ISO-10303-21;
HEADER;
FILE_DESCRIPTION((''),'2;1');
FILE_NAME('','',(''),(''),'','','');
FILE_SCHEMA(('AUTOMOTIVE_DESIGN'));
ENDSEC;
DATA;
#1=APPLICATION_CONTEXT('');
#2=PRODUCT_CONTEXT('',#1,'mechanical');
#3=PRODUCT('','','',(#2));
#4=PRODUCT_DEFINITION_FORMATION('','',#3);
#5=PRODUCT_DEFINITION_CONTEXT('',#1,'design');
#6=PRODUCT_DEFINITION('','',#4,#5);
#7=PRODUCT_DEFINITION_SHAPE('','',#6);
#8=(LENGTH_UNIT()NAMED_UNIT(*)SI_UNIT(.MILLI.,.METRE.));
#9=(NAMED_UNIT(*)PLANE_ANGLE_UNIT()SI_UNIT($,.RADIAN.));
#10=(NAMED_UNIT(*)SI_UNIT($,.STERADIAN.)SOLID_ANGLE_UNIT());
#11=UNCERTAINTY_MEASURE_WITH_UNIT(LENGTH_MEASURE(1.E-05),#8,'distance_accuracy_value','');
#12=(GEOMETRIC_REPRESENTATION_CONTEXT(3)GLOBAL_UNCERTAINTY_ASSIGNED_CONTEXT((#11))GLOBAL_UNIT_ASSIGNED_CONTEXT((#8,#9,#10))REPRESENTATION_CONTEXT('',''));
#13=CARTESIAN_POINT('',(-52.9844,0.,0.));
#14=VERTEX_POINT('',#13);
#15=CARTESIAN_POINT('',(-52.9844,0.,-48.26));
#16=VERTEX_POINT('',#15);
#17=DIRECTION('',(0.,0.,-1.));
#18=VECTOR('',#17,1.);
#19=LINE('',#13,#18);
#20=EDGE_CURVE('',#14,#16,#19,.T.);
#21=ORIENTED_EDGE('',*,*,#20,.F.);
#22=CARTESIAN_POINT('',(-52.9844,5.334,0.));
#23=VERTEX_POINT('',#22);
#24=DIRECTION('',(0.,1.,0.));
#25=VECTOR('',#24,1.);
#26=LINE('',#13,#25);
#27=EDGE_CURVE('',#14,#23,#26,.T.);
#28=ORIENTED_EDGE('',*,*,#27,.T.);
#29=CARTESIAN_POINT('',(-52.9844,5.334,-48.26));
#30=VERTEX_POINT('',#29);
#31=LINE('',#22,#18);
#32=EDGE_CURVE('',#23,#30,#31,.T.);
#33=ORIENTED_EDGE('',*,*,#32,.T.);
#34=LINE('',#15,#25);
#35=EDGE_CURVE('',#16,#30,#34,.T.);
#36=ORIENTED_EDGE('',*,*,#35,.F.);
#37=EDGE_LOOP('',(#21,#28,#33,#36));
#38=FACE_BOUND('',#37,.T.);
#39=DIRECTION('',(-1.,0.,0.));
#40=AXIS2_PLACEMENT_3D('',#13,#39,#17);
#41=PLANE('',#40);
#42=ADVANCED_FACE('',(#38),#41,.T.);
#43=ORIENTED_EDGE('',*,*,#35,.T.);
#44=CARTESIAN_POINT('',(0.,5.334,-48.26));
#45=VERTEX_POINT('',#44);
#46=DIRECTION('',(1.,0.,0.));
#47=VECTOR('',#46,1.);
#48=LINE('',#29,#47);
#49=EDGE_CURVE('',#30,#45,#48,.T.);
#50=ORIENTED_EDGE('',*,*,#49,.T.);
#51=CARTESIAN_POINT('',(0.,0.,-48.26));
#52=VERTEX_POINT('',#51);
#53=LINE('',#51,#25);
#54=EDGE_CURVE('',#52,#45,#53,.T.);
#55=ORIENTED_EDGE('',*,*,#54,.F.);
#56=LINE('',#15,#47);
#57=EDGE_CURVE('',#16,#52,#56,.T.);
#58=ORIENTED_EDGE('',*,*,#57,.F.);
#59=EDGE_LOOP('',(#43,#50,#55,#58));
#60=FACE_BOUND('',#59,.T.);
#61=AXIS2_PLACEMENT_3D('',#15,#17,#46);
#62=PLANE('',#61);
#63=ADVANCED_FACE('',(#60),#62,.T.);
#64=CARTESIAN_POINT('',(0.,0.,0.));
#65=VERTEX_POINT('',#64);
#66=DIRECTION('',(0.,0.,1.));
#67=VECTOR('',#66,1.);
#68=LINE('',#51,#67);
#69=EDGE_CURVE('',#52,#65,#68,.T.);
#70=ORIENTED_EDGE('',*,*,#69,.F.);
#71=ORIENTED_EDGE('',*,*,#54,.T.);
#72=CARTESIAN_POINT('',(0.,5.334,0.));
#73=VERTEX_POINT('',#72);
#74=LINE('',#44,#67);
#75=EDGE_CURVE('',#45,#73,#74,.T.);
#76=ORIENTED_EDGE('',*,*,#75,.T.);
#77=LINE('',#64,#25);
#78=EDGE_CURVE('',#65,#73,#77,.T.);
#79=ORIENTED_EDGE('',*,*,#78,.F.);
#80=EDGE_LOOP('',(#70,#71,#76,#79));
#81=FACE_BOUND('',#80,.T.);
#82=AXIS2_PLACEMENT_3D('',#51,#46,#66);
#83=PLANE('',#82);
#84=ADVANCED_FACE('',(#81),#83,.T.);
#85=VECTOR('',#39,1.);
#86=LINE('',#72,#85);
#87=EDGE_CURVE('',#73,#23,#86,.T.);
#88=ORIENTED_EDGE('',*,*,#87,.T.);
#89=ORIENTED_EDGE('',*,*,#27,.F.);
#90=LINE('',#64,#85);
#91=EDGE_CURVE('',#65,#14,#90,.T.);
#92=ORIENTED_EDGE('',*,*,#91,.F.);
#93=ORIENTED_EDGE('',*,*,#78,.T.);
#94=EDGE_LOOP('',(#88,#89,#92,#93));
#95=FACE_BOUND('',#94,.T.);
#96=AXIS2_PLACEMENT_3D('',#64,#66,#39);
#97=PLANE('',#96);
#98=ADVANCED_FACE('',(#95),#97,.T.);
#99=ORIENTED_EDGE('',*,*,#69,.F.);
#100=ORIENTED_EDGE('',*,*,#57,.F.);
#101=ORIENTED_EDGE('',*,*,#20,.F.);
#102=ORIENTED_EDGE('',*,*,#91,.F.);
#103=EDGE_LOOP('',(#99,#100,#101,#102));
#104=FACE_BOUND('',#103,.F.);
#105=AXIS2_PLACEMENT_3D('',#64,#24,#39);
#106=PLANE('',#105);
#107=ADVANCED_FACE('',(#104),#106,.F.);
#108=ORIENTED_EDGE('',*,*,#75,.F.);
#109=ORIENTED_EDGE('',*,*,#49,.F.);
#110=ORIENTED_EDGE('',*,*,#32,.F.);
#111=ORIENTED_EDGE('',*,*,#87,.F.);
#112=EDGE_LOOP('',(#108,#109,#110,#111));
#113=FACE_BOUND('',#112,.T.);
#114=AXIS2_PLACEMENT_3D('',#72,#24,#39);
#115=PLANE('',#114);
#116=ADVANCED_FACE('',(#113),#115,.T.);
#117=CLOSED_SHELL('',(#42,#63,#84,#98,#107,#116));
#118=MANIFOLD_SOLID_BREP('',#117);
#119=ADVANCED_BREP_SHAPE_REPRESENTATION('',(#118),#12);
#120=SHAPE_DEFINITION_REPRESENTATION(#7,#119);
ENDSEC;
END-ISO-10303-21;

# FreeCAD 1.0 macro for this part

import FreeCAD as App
import Part
import Sketcher

V = App.Vector
Q = App.Units.Quantity


def add_polygon(sketch, points):
    """Adds a closed chain of lines whose ends are joined by coincident constraints."""
    first, n = sketch.GeometryCount, len(points)
    for a, b in zip(points, points[1:] + points[:1]):
        sketch.addGeometry(Part.LineSegment(App.Vector(*a, 0), App.Vector(*b, 0)), False)
    for i in range(n):
        sketch.addConstraint(Sketcher.Constraint("Coincident", first + i, 2, first + (i + 1) % n, 1))

doc = App.newDocument("Part")
body = doc.addObject("PartDesign::Body", "Body")

sketch1 = doc.addObject("Sketcher::SketchObject", "Sketch")
body.addObject(sketch1)
sketch1.AttachmentSupport = (doc.XZ_Plane, [""])
sketch1.MapMode = "FlatFace"
add_polygon(sketch1, [(-52.9844, 0), (0, 0), (0, -48.26), (-52.9844, -48.26)])
sketch1.addConstraint([
    Sketcher.Constraint("Horizontal", 0),
    Sketcher.Constraint("Vertical", 1),
    Sketcher.Constraint("Horizontal", 2),
    Sketcher.Constraint("Vertical", 3),
    Sketcher.Constraint("Coincident", 0, 2, -1, 1),
    Sketcher.Constraint("DistanceY", 1, 2, 1, 1, Q("1.9 in")),
    Sketcher.Constraint("DistanceX", 0, 1, 0, 2, Q("2.086 in")),
])
pad1 = doc.addObject("PartDesign::Pad", "Pad")
body.addObject(pad1)
pad1.Profile = sketch1
pad1.Length = Q("0.21 in")
pad1.Reversed = True

doc.recompute()
